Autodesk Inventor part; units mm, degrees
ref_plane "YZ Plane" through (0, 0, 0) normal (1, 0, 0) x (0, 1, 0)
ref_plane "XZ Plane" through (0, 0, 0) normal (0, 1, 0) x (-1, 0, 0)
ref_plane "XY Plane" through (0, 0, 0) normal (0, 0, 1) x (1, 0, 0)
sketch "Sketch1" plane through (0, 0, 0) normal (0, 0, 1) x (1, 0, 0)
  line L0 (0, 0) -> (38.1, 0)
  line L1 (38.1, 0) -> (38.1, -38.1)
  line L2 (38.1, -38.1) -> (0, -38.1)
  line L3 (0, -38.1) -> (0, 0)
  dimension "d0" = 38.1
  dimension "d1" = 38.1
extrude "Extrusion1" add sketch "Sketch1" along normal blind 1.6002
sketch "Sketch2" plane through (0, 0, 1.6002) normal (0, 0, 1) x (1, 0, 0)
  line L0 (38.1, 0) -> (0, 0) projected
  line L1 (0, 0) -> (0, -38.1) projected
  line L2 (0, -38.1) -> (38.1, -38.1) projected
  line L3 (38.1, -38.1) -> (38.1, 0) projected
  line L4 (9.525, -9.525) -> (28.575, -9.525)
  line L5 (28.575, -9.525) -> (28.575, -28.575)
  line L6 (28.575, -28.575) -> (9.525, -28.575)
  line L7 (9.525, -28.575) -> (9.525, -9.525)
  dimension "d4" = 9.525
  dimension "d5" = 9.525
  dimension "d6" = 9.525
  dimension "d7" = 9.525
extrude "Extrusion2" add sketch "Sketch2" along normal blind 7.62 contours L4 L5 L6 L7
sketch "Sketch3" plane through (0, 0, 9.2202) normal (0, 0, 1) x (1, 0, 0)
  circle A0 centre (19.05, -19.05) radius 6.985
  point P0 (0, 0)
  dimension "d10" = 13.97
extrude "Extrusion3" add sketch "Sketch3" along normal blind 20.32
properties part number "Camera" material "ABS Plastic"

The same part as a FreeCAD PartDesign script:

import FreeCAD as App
import Part
import Sketcher
from FreeCAD import Vector
Q = App.Units.Quantity

doc = App.newDocument("Part")
params = doc.addObject("Spreadsheet::Sheet", "Params")
for row, (alias, value) in enumerate([
    ("sketch1_width", "1.5 in"),
    ("pad1_length", "0.063 in"),
    ("sketch2_width", "0.75 in"),
    ("pad2_length", "0.3 in"),
    ("sketch3_diameter", "0.55 in"),
    ("pad3_length", "0.8 in"),
], start=1):
    params.set(f"A{row}", alias)
    params.set(f"B{row}", "=" + value)
    params.setAlias(f"B{row}", alias)

body = doc.addObject("PartDesign::Body", "Body")

# Sketch on XY plane
sketch1 = doc.addObject("Sketcher::SketchObject", "Sketch")
body.addObject(sketch1)
sketch1.AttachmentSupport = (doc.XY_Plane, [""])
sketch1.MapMode = "FlatFace"
sketch1.addGeometry([
    Part.LineSegment(Vector(38, 0, 0), Vector(0, 0, 0)),
    Part.LineSegment(Vector(0, 0, 0), Vector(0, -38, 0)),
    Part.LineSegment(Vector(0, -38, 0), Vector(38, -38, 0)),
    Part.LineSegment(Vector(38, -38, 0), Vector(38, 0, 0)),
], False)
sketch1.addConstraint([
    Sketcher.Constraint("Coincident", 0, 2, 1, 1),
    Sketcher.Constraint("Coincident", 1, 2, 2, 1),
    Sketcher.Constraint("Coincident", 2, 2, 3, 1),
    Sketcher.Constraint("Coincident", 3, 2, 0, 1),
    Sketcher.Constraint("Horizontal", 0),
    Sketcher.Constraint("Vertical", 1),
    Sketcher.Constraint("Horizontal", 2),
    Sketcher.Constraint("Vertical", 3),
    Sketcher.Constraint("Coincident", 0, 2, -1, 1),
    Sketcher.Constraint("Equal", 2, 1),
    Sketcher.Constraint("DistanceX", 0, 2, 0, 1, Q("1.5 in")),
])
sketch1.setExpression("Constraints[10]", "Params.sketch1_width")
pad1 = doc.addObject("PartDesign::Pad", "Pad")
body.addObject(pad1)
pad1.Profile = sketch1
pad1.setExpression("Length", "Params.pad1_length")

# Sketch on XY plane
sketch2 = doc.addObject("Sketcher::SketchObject", "Sketch001")
body.addObject(sketch2)
sketch2.AttachmentSupport = (doc.XY_Plane, [""])
sketch2.MapMode = "FlatFace"
sketch2.AttachmentOffset = App.Placement(Vector(0, 0, 0.063 * 25.4), App.Rotation())
sketch2.addGeometry([
    Part.LineSegment(Vector(29, -10, 0), Vector(10, -10, 0)),
    Part.LineSegment(Vector(10, -10, 0), Vector(10, -29, 0)),
    Part.LineSegment(Vector(10, -29, 0), Vector(29, -29, 0)),
    Part.LineSegment(Vector(29, -29, 0), Vector(29, -10, 0)),
], False)
sketch2.addConstraint([
    Sketcher.Constraint("Coincident", 0, 2, 1, 1),
    Sketcher.Constraint("Coincident", 1, 2, 2, 1),
    Sketcher.Constraint("Coincident", 2, 2, 3, 1),
    Sketcher.Constraint("Coincident", 3, 2, 0, 1),
    Sketcher.Constraint("Horizontal", 0),
    Sketcher.Constraint("Vertical", 1),
    Sketcher.Constraint("Horizontal", 2),
    Sketcher.Constraint("Vertical", 3),
    Sketcher.Constraint("Equal", 2, 1),
    Sketcher.Constraint("DistanceX", -1, 1, 0, 2, Q("0.375 in")),
    Sketcher.Constraint("DistanceY", 0, 2, -1, 1, Q("0.375 in")),
    Sketcher.Constraint("DistanceX", 0, 2, 0, 1, Q("0.75 in")),
])
sketch2.setExpression("Constraints[11]", "Params.sketch2_width")
pad2 = doc.addObject("PartDesign::Pad", "Pad001")
body.addObject(pad2)
pad2.Profile = sketch2
pad2.setExpression("Length", "Params.pad2_length")

# Sketch on XY plane
sketch3 = doc.addObject("Sketcher::SketchObject", "Sketch002")
body.addObject(sketch3)
sketch3.AttachmentSupport = (doc.XY_Plane, [""])
sketch3.MapMode = "FlatFace"
sketch3.AttachmentOffset = App.Placement(Vector(0, 0, 0.363 * 25.4), App.Rotation())
sketch3.addGeometry(Part.Circle(Vector(19, -19, 0), Vector(0, 0, 1), 7), False)
sketch3.addConstraint([
    Sketcher.Constraint("Diameter", 0, Q("0.55 in")),
    Sketcher.Constraint("DistanceX", -1, 1, 0, 3, Q("0.75 in")),
    Sketcher.Constraint("DistanceY", 0, 3, -1, 1, Q("0.75 in")),
])
sketch3.setExpression("Constraints[0]", "Params.sketch3_diameter")
pad3 = doc.addObject("PartDesign::Pad", "Pad002")
body.addObject(pad3)
pad3.Profile = sketch3
pad3.setExpression("Length", "Params.pad3_length")

doc.recompute()
